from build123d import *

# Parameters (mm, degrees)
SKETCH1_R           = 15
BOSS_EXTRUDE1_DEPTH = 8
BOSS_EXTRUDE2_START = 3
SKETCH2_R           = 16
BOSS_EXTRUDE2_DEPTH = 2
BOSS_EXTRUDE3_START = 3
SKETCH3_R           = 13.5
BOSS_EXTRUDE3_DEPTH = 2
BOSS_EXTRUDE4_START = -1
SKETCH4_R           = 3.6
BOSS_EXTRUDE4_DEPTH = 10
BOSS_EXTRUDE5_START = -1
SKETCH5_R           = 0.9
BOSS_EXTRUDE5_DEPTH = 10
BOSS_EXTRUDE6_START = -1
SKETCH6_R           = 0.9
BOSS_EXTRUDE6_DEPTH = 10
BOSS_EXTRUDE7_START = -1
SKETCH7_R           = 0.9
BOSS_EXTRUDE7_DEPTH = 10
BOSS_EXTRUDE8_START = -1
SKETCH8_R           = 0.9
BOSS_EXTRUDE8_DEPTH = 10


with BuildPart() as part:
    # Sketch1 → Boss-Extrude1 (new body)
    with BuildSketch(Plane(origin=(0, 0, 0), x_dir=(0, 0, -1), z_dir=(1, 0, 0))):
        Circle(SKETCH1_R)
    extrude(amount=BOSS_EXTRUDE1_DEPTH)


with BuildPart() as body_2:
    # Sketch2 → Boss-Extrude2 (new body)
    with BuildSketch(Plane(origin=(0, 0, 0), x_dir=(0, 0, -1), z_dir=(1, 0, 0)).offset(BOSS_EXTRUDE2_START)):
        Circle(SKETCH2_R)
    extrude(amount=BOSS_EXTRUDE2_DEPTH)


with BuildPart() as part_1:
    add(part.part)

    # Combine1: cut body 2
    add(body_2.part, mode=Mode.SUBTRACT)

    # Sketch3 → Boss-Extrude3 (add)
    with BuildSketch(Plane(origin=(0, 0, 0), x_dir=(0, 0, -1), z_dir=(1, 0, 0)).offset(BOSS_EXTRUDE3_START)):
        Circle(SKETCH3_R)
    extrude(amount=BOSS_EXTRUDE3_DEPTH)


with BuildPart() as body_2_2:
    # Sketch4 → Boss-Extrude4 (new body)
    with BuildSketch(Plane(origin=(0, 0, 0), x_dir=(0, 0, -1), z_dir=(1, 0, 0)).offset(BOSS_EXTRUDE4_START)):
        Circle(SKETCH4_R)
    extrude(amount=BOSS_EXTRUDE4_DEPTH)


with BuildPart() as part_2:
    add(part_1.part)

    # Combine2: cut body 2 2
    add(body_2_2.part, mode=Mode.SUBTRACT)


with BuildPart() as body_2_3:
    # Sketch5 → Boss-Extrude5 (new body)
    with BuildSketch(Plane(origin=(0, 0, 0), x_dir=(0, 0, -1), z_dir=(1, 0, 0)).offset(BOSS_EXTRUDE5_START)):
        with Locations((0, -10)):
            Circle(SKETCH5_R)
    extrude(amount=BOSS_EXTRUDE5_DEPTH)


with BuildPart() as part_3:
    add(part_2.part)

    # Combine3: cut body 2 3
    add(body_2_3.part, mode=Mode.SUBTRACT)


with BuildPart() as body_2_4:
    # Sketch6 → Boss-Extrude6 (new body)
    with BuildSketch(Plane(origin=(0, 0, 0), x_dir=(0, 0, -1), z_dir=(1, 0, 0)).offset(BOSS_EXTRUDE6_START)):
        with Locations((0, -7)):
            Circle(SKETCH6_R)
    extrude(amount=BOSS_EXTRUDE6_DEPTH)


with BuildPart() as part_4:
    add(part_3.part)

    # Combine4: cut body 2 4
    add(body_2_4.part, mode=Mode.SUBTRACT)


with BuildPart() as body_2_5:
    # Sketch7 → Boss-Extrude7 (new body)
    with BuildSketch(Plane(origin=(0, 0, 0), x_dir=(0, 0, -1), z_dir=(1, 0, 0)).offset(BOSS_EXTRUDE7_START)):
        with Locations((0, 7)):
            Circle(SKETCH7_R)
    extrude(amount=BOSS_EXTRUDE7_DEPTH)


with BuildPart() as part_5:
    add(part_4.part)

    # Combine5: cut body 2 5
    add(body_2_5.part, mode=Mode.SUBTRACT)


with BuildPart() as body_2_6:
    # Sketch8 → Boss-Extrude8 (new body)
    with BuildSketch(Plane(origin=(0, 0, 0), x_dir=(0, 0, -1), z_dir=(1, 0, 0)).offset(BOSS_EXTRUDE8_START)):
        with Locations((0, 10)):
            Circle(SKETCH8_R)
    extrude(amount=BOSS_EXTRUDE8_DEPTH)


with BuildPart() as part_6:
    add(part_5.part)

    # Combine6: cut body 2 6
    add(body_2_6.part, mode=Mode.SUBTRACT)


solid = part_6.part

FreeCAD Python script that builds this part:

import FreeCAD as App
import Part
import Sketcher
from FreeCAD import Vector
Q = App.Units.Quantity

doc = App.newDocument("Part")
body = doc.addObject("PartDesign::Body", "Body")

# Sketch on YZ plane
sketch1 = body.newObject("Sketcher::SketchObject", "Sketch")
sketch1.AttachmentSupport = (doc.getObject("YZ_Plane"), [""])
sketch1.MapMode = "FlatFace"
sketch1.addGeometry(Part.Circle(Vector(0, 0, 0), Vector(0, 0, 1), 15), False)
sketch1.addConstraint([
    Sketcher.Constraint("Coincident", 0, 3, -1, 1),
    Sketcher.Constraint("Diameter", 0, Q("30 mm")),
])
pad1 = body.newObject("PartDesign::Pad", "Pad")
pad1.Profile = sketch1
pad1.Length = 8
body2 = doc.addObject("PartDesign::Body", "Body001")

# Sketch on YZ plane
sketch2 = body2.newObject("Sketcher::SketchObject", "Sketch001")
sketch2.AttachmentSupport = (doc.getObject("YZ_Plane001"), [""])
sketch2.MapMode = "FlatFace"
sketch2.AttachmentOffset = App.Placement(Vector(0, 0, 3), App.Rotation())
sketch2.addGeometry(Part.Circle(Vector(0, 0, 0), Vector(0, 0, 1), 16), False)
sketch2.addConstraint([
    Sketcher.Constraint("Coincident", 0, 3, -1, 1),
    Sketcher.Constraint("Diameter", 0, Q("32 mm")),
])
pad2 = body2.newObject("PartDesign::Pad", "Pad001")
pad2.Profile = sketch2
pad2.Length = 2
body.AllowCompound = True
doc.recompute()

boolean = body.newObject("PartDesign::Boolean", "Boolean")
boolean.Type = "Cut"
boolean.addObjects([body2])

# Sketch on YZ plane
sketch3 = body.newObject("Sketcher::SketchObject", "Sketch002")
sketch3.AttachmentSupport = (doc.getObject("YZ_Plane"), [""])
sketch3.MapMode = "FlatFace"
sketch3.AttachmentOffset = App.Placement(Vector(0, 0, 3), App.Rotation())
sketch3.addGeometry(Part.Circle(Vector(0, 0, 0), Vector(0, 0, 1), 14), False)
sketch3.addConstraint([
    Sketcher.Constraint("Coincident", 0, 3, -1, 1),
    Sketcher.Constraint("Diameter", 0, Q("27 mm")),
])
pad3 = body.newObject("PartDesign::Pad", "Pad002")
pad3.Profile = sketch3
pad3.Length = 2
body3 = doc.addObject("PartDesign::Body", "Body002")

# Sketch on YZ plane
sketch4 = body3.newObject("Sketcher::SketchObject", "Sketch003")
sketch4.AttachmentSupport = (doc.getObject("YZ_Plane002"), [""])
sketch4.MapMode = "FlatFace"
sketch4.AttachmentOffset = App.Placement(Vector(0, 0, -1), App.Rotation())
sketch4.addGeometry(Part.Circle(Vector(0, 0, 0), Vector(0, 0, 1), 3.6), False)
sketch4.addConstraint([
    Sketcher.Constraint("Coincident", 0, 3, -1, 1),
    Sketcher.Constraint("Diameter", 0, Q("7.2 mm")),
])
pad4 = body3.newObject("PartDesign::Pad", "Pad003")
pad4.Profile = sketch4
pad4.Length = 10
doc.recompute()

boolean2 = body.newObject("PartDesign::Boolean", "Boolean001")
boolean2.Type = "Cut"
boolean2.addObjects([body3])
body4 = doc.addObject("PartDesign::Body", "Body003")

# Sketch on YZ plane
sketch5 = body4.newObject("Sketcher::SketchObject", "Sketch004")
sketch5.AttachmentSupport = (doc.getObject("YZ_Plane003"), [""])
sketch5.MapMode = "FlatFace"
sketch5.AttachmentOffset = App.Placement(Vector(0, 0, -1), App.Rotation())
sketch5.addGeometry(Part.Circle(Vector(-10, 0, 0), Vector(0, 0, 1), 0.9), False)
sketch5.addConstraint([
    Sketcher.Constraint("PointOnObject", 0, 3, -1),
    Sketcher.Constraint("Diameter", 0, Q("1.8 mm")),
    Sketcher.Constraint("DistanceX", 0, 3, -1, 1, Q("10 mm")),
])
pad5 = body4.newObject("PartDesign::Pad", "Pad004")
pad5.Profile = sketch5
pad5.Length = 10
doc.recompute()

boolean3 = body.newObject("PartDesign::Boolean", "Boolean002")
boolean3.Type = "Cut"
boolean3.addObjects([body4])
body5 = doc.addObject("PartDesign::Body", "Body004")

# Sketch on YZ plane
sketch6 = body5.newObject("Sketcher::SketchObject", "Sketch005")
sketch6.AttachmentSupport = (doc.getObject("YZ_Plane004"), [""])
sketch6.MapMode = "FlatFace"
sketch6.AttachmentOffset = App.Placement(Vector(0, 0, -1), App.Rotation())
sketch6.addGeometry(Part.Circle(Vector(-7, 0, 0), Vector(0, 0, 1), 0.9), False)
sketch6.addConstraint([
    Sketcher.Constraint("PointOnObject", 0, 3, -1),
    Sketcher.Constraint("Diameter", 0, Q("1.8 mm")),
    Sketcher.Constraint("DistanceX", 0, 3, -1, 1, Q("7 mm")),
])
pad6 = body5.newObject("PartDesign::Pad", "Pad005")
pad6.Profile = sketch6
pad6.Length = 10
doc.recompute()

boolean4 = body.newObject("PartDesign::Boolean", "Boolean003")
boolean4.Type = "Cut"
boolean4.addObjects([body5])
body6 = doc.addObject("PartDesign::Body", "Body005")

# Sketch on YZ plane
sketch7 = body6.newObject("Sketcher::SketchObject", "Sketch006")
sketch7.AttachmentSupport = (doc.getObject("YZ_Plane005"), [""])
sketch7.MapMode = "FlatFace"
sketch7.AttachmentOffset = App.Placement(Vector(0, 0, -1), App.Rotation())
sketch7.addGeometry(Part.Circle(Vector(7, 0, 0), Vector(0, 0, 1), 0.9), False)
sketch7.addConstraint([
    Sketcher.Constraint("PointOnObject", 0, 3, -1),
    Sketcher.Constraint("Diameter", 0, Q("1.8 mm")),
    Sketcher.Constraint("DistanceX", -1, 1, 0, 3, Q("7 mm")),
])
pad7 = body6.newObject("PartDesign::Pad", "Pad006")
pad7.Profile = sketch7
pad7.Length = 10
doc.recompute()

boolean5 = body.newObject("PartDesign::Boolean", "Boolean004")
boolean5.Type = "Cut"
boolean5.addObjects([body6])
body7 = doc.addObject("PartDesign::Body", "Body006")

# Sketch on YZ plane
sketch8 = body7.newObject("Sketcher::SketchObject", "Sketch007")
sketch8.AttachmentSupport = (doc.getObject("YZ_Plane006"), [""])
sketch8.MapMode = "FlatFace"
sketch8.AttachmentOffset = App.Placement(Vector(0, 0, -1), App.Rotation())
sketch8.addGeometry(Part.Circle(Vector(10, 0, 0), Vector(0, 0, 1), 0.9), False)
sketch8.addConstraint([
    Sketcher.Constraint("PointOnObject", 0, 3, -1),
    Sketcher.Constraint("Diameter", 0, Q("1.8 mm")),
    Sketcher.Constraint("DistanceX", -1, 1, 0, 3, Q("10 mm")),
])
pad8 = body7.newObject("PartDesign::Pad", "Pad007")
pad8.Profile = sketch8
pad8.Length = 10
doc.recompute()

boolean6 = body.newObject("PartDesign::Boolean", "Boolean005")
boolean6.Type = "Cut"
boolean6.addObjects([body7])

doc.recompute()
